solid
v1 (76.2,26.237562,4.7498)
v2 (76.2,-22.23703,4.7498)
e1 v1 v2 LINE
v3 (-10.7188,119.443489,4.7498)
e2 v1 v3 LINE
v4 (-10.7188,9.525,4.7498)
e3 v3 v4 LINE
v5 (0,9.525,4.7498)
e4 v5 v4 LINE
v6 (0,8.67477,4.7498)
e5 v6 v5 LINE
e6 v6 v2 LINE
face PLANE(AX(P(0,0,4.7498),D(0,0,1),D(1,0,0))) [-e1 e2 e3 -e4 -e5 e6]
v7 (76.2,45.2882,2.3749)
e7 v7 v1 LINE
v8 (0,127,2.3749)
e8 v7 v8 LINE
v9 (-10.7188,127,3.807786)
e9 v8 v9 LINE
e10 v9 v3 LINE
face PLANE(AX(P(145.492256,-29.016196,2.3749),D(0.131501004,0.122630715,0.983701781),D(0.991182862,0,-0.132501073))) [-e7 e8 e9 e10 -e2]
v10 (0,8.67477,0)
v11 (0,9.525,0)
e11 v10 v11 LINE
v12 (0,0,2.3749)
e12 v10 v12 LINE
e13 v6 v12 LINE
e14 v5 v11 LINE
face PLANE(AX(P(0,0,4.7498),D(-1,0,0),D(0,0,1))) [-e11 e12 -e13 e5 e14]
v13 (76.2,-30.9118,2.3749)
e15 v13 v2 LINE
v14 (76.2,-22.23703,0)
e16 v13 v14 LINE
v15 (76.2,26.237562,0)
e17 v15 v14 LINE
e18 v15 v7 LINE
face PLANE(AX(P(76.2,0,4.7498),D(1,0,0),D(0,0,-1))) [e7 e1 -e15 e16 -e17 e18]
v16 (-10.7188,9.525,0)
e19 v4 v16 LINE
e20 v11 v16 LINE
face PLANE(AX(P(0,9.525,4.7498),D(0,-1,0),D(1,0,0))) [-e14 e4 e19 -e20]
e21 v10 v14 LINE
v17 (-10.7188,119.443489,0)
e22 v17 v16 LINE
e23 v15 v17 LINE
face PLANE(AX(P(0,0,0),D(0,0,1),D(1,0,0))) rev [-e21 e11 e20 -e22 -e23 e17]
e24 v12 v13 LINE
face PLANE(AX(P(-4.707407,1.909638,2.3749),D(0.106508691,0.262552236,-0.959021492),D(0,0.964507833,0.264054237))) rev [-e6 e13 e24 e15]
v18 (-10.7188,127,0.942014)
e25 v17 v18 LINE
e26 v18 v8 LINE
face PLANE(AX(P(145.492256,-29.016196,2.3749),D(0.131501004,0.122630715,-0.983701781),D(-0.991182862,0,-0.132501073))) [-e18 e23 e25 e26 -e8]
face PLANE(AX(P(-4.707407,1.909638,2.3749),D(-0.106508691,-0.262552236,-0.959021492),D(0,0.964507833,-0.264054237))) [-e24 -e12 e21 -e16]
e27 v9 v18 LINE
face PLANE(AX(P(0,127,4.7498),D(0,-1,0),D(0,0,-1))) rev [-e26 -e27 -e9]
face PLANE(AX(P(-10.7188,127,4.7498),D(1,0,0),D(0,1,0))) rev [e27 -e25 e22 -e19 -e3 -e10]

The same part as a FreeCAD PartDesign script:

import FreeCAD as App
import Part
import Sketcher
from FreeCAD import Vector
Q = App.Units.Quantity

doc = App.newDocument("Part")
body = doc.addObject("PartDesign::Body", "Body")

# Sketch on XY plane
sketch1 = body.newObject("Sketcher::SketchObject", "Sketch")
sketch1.AttachmentSupport = (doc.getObject("XY_Plane"), [""])
sketch1.MapMode = "FlatFace"
sketch1.addGeometry(Part.LineSegment(Vector(0, 0, 0), Vector(76.2, -30.9118, 0)), False)
sketch1.addGeometry(Part.LineSegment(Vector(76.2, -30.9118, 0), Vector(76.2, 45.2882, 0)), False)
sketch1.addGeometry(Part.LineSegment(Vector(76.2, 45.2882, 0), Vector(0, 127, 0)), False)
sketch1.addGeometry(Part.LineSegment(Vector(0, 127, 0), Vector(-10.7188, 127, 0)), False)
sketch1.addGeometry(Part.LineSegment(Vector(-10.7188, 127, 0), Vector(-10.7188, 9.525, 0)), False)
sketch1.addGeometry(Part.LineSegment(Vector(-10.7188, 9.525, 0), Vector(0, 9.525, 0)), False)
sketch1.addGeometry(Part.LineSegment(Vector(0, 9.525, 0), Vector(0, 0, 0)), False)
sketch1.addConstraint(Sketcher.Constraint("Coincident", 0, 2, 1, 1))
sketch1.addConstraint(Sketcher.Constraint("Coincident", 1, 2, 2, 1))
sketch1.addConstraint(Sketcher.Constraint("Coincident", 2, 2, 3, 1))
sketch1.addConstraint(Sketcher.Constraint("Coincident", 3, 2, 4, 1))
sketch1.addConstraint(Sketcher.Constraint("Coincident", 4, 2, 5, 1))
sketch1.addConstraint(Sketcher.Constraint("Coincident", 5, 2, 6, 1))
sketch1.addConstraint(Sketcher.Constraint("Coincident", 6, 2, 0, 1))
sketch1.addConstraint(Sketcher.Constraint("Vertical", 1))
sketch1.addConstraint(Sketcher.Constraint("Horizontal", 3))
sketch1.addConstraint(Sketcher.Constraint("Vertical", 4))
sketch1.addConstraint(Sketcher.Constraint("Horizontal", 5))
sketch1.addConstraint(Sketcher.Constraint("Vertical", 6))
sketch1.addConstraint(Sketcher.Constraint("Coincident", 6, 2, -1, 1))
sketch1.addConstraint(Sketcher.Constraint("PointOnObject", 2, 2, -2))
sketch1.addConstraint(Sketcher.Constraint("DistanceY", 1, 1, 1, 2, Q("3 in")))
sketch1.addConstraint(Sketcher.Constraint("DistanceX", -1, 1, 0, 2, Q("3 in")))
sketch1.addConstraint(Sketcher.Constraint("DistanceY", -1, 1, 2, 2, Q("5 in")))
sketch1.addConstraint(Sketcher.Constraint("DistanceX", 3, 2, 3, 1, Q("0.422 in")))
sketch1.addConstraint(Sketcher.Constraint("DistanceY", 4, 2, 4, 1, Q("4.625 in")))
sketch1.addConstraint(Sketcher.Constraint("DistanceY", 0, 2, -1, 1, Q("1.217 in")))
pad1 = body.newObject("PartDesign::Pad", "Pad")
pad1.Profile = sketch1
pad1.Length = Q("0.187 in")

# Sketch on an angled plane
sketch2 = body.newObject("Sketcher::SketchObject", "Sketch001")
sketch2.Placement = App.Placement(Vector(0, 0, 0), App.Rotation(Vector(0, 0, -1), Vector(-0.375913025, -0.926654951, 0), Vector(-0.926654951, 0.375913025, 0), "ZXY"))
sketch2.addGeometry(Part.LineSegment(Vector(-2.3749, 0, 0), Vector(0, -8.038518, 0)), False)
sketch2.addGeometry(Part.LineSegment(Vector(0, -8.038518, 0), Vector(0.750296, -8.038518, 0)), False)
sketch2.addGeometry(Part.LineSegment(Vector(0.750296, -8.038518, 0), Vector(0.750296, 2.310234, 0)), False)
sketch2.addGeometry(Part.LineSegment(Vector(0.750296, 2.310234, 0), Vector(-5.314344, 2.310234, 0)), False)
sketch2.addGeometry(Part.LineSegment(Vector(-5.314344, 2.310234, 0), Vector(-5.314344, -8.038518, 0)), False)
sketch2.addGeometry(Part.LineSegment(Vector(-5.314344, -8.038518, 0), Vector(-4.7498, -8.038518, 0)), False)
sketch2.addGeometry(Part.LineSegment(Vector(-4.7498, -8.038518, 0), Vector(-2.3749, 0, 0)), False)
sketch2.addConstraint(Sketcher.Constraint("Coincident", 0, 2, 1, 1))
sketch2.addConstraint(Sketcher.Constraint("Coincident", 1, 2, 2, 1))
sketch2.addConstraint(Sketcher.Constraint("Coincident", 2, 2, 3, 1))
sketch2.addConstraint(Sketcher.Constraint("Coincident", 3, 2, 4, 1))
sketch2.addConstraint(Sketcher.Constraint("Coincident", 4, 2, 5, 1))
sketch2.addConstraint(Sketcher.Constraint("Coincident", 5, 2, 6, 1))
sketch2.addConstraint(Sketcher.Constraint("Coincident", 6, 2, 0, 1))
sketch2.addConstraint(Sketcher.Constraint("Horizontal", 1))
sketch2.addConstraint(Sketcher.Constraint("Vertical", 2))
sketch2.addConstraint(Sketcher.Constraint("Horizontal", 3))
sketch2.addConstraint(Sketcher.Constraint("Vertical", 4))
sketch2.addConstraint(Sketcher.Constraint("Horizontal", 5))
sketch2.addConstraint(Sketcher.Constraint("PointOnObject", 0, 2, -2))
sketch2.addConstraint(Sketcher.Constraint("PointOnObject", 6, 2, -1))
sketch2.addConstraint(Sketcher.Constraint("Horizontal", 1, 2, 4, 2))
sketch2.addConstraint(Sketcher.Constraint("Equal", 0, 6))
sketch2.addConstraint(Sketcher.Constraint("Distance", 0, Q("0.33 in")))
sketch2.addConstraint(Sketcher.Constraint("DistanceX", 5, 2, -1, 1, Q("0.187 in")))
sketch2.addConstraint(Sketcher.Constraint("DistanceX", 3, 2, 3, 1, Q("6.06464 mm")))
sketch2.addConstraint(Sketcher.Constraint("DistanceY", 2, 1, 2, 2, Q("10.348752 mm")))
sketch2.addConstraint(Sketcher.Constraint("DistanceX", 1, 1, 1, 2, Q("0.750296 mm")))
pocket1 = body.newObject("PartDesign::Pocket", "Pocket")
pocket1.Profile = sketch2
pocket1.Type = "TwoLengths"
pocket1.Length = Q("0.2 in")
pocket1.Length2 = Q("4 in")
pocket1.Reversed = True

# Sketch on an angled plane
sketch3 = body.newObject("Sketcher::SketchObject", "Sketch002")
sketch3.Placement = App.Placement(Vector(12.854537, -13.784349, 0), App.Rotation(Vector(0, 0, -1), Vector(0.731342479, 0.682010394, 0), Vector(0.682010394, -0.731342479, 0), "ZXY"))
sketch3.addGeometry(Part.LineSegment(Vector(-2.3749, 86.61532, 0), Vector(0, 73.622587, 0)), False)
sketch3.addGeometry(Part.LineSegment(Vector(0, 73.622587, 0), Vector(0.87256, 73.622587, 0)), False)
sketch3.addGeometry(Part.LineSegment(Vector(0.87256, 73.622587, 0), Vector(0.87256, 91.301528, 0)), False)
sketch3.addGeometry(Part.LineSegment(Vector(0.87256, 91.301528, 0), Vector(-6.53122, 91.301528, 0)), False)
sketch3.addGeometry(Part.LineSegment(Vector(-6.53122, 91.301528, 0), Vector(-6.53122, 73.622587, 0)), False)
sketch3.addGeometry(Part.LineSegment(Vector(-6.53122, 73.622587, 0), Vector(-4.7498, 73.622587, 0)), False)
sketch3.addGeometry(Part.LineSegment(Vector(-4.7498, 73.622587, 0), Vector(-2.3749, 86.61532, 0)), False)
sketch3.addConstraint(Sketcher.Constraint("Coincident", 0, 2, 1, 1))
sketch3.addConstraint(Sketcher.Constraint("Coincident", 1, 2, 2, 1))
sketch3.addConstraint(Sketcher.Constraint("Coincident", 2, 2, 3, 1))
sketch3.addConstraint(Sketcher.Constraint("Coincident", 3, 2, 4, 1))
sketch3.addConstraint(Sketcher.Constraint("Coincident", 4, 2, 5, 1))
sketch3.addConstraint(Sketcher.Constraint("Coincident", 5, 2, 6, 1))
sketch3.addConstraint(Sketcher.Constraint("Coincident", 6, 2, 0, 1))
sketch3.addConstraint(Sketcher.Constraint("Horizontal", 1))
sketch3.addConstraint(Sketcher.Constraint("Vertical", 2))
sketch3.addConstraint(Sketcher.Constraint("Horizontal", 3))
sketch3.addConstraint(Sketcher.Constraint("Vertical", 4))
sketch3.addConstraint(Sketcher.Constraint("Horizontal", 5))
sketch3.addConstraint(Sketcher.Constraint("PointOnObject", 0, 2, -2))
sketch3.addConstraint(Sketcher.Constraint("Horizontal", 1, 2, 4, 2))
sketch3.addConstraint(Sketcher.Constraint("Equal", 0, 6))
sketch3.addConstraint(Sketcher.Constraint("Distance", 0, Q("0.52 in")))
sketch3.addConstraint(Sketcher.Constraint("DistanceX", 5, 2, -1, 1, Q("0.187 in")))
sketch3.addConstraint(Sketcher.Constraint("DistanceX", 1, 1, 1, 2, Q("0.87256 mm")))
sketch3.addConstraint(Sketcher.Constraint("DistanceX", 3, 2, 3, 1, Q("7.403779 mm")))
sketch3.addConstraint(Sketcher.Constraint("DistanceY", 2, 1, 2, 2, Q("17.678941 mm")))
sketch3.addConstraint(Sketcher.Constraint("DistanceY", -1, 1, 2, 2, Q("91.301528 mm")))
pocket2 = body.newObject("PartDesign::Pocket", "Pocket001")
pocket2.Profile = sketch3
pocket2.Type = "ThroughAll"
pocket2.Midplane = True

doc.recompute()
